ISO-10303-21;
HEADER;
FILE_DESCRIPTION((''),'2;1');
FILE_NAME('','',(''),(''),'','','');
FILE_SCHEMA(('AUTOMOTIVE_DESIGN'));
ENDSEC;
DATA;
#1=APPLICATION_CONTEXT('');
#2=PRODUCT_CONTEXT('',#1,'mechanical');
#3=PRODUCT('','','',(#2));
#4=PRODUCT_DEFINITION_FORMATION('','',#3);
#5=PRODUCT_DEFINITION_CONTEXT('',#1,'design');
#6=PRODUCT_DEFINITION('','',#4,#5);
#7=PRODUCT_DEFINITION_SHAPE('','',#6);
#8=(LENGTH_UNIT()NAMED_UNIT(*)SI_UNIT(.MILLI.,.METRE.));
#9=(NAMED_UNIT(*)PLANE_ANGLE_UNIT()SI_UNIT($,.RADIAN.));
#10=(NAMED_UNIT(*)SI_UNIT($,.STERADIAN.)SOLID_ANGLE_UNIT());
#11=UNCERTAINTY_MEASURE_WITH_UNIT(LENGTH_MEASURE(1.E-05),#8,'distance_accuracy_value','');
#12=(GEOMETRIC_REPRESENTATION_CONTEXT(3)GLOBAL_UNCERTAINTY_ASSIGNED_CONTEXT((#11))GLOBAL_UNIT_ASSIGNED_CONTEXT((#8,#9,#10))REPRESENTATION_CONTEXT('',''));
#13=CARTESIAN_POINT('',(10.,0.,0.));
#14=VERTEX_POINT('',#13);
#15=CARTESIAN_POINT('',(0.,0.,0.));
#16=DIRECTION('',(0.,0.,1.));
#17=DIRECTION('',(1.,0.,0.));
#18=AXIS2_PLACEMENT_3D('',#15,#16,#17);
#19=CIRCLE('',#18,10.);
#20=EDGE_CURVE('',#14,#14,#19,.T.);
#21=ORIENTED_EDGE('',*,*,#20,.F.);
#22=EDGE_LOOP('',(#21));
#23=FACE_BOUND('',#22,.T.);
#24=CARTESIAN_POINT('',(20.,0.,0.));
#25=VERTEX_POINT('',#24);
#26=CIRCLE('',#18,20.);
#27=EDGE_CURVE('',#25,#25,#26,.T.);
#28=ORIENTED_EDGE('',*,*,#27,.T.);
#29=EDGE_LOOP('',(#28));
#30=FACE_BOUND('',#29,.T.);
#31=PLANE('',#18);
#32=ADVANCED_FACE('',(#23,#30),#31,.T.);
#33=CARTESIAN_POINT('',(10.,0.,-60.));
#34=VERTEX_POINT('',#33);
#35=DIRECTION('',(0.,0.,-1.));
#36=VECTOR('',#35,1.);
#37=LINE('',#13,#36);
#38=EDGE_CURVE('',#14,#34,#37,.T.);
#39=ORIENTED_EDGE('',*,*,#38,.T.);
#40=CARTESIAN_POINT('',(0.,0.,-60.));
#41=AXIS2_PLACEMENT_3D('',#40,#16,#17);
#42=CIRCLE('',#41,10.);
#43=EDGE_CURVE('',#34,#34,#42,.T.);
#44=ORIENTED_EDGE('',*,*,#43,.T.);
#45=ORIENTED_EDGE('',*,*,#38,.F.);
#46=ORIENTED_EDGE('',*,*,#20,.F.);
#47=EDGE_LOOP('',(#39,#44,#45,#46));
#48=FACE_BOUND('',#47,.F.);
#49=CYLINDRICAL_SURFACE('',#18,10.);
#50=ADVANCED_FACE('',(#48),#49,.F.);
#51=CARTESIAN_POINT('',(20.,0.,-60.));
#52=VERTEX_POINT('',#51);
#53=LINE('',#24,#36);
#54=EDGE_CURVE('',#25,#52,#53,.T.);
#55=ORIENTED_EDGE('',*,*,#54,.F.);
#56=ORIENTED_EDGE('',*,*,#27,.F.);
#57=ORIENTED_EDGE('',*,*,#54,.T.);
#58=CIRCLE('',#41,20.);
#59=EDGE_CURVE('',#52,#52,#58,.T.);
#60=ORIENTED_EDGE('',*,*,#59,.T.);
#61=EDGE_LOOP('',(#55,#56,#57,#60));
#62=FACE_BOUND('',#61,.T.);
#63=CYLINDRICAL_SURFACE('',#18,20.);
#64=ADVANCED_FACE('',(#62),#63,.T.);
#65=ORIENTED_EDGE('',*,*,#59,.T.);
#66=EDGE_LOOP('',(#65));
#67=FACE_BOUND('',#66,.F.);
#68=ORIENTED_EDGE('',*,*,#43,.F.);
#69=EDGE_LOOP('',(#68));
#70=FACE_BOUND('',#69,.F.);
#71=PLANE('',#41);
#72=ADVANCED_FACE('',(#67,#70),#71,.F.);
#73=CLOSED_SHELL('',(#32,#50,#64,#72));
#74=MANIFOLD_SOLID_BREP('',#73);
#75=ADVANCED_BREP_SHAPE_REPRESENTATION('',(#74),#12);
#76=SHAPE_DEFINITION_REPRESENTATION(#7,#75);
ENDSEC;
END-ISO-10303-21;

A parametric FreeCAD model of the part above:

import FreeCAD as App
import Part
import Sketcher

V = App.Vector
Q = App.Units.Quantity

doc = App.newDocument("Part")
body = doc.addObject("PartDesign::Body", "Body")

# Sketch on XY plane
sketch1 = body.newObject("Sketcher::SketchObject", "Sketch")
sketch1.AttachmentSupport = (doc.getObject("XY_Plane"), [""])
sketch1.MapMode = "FlatFace"
sketch1.addGeometry(Part.Circle(V(0, 0, 0), V(0, 0, 1), 20), False)
sketch1.addGeometry(Part.Circle(V(0, 0, 0), V(0, 0, 1), 10), False)
sketch1.addConstraint(Sketcher.Constraint("Coincident", 0, 3, -1, 1))
sketch1.addConstraint(Sketcher.Constraint("Coincident", 1, 3, -1, 1))
sketch1.addConstraint(Sketcher.Constraint("Diameter", 0, Q("40 mm")))
sketch1.addConstraint(Sketcher.Constraint("Diameter", 1, Q("20 mm")))
pad1 = body.newObject("PartDesign::Pad", "Pad")
pad1.Profile = sketch1
pad1.Length = 60
pad1.Reversed = True

doc.recompute()
